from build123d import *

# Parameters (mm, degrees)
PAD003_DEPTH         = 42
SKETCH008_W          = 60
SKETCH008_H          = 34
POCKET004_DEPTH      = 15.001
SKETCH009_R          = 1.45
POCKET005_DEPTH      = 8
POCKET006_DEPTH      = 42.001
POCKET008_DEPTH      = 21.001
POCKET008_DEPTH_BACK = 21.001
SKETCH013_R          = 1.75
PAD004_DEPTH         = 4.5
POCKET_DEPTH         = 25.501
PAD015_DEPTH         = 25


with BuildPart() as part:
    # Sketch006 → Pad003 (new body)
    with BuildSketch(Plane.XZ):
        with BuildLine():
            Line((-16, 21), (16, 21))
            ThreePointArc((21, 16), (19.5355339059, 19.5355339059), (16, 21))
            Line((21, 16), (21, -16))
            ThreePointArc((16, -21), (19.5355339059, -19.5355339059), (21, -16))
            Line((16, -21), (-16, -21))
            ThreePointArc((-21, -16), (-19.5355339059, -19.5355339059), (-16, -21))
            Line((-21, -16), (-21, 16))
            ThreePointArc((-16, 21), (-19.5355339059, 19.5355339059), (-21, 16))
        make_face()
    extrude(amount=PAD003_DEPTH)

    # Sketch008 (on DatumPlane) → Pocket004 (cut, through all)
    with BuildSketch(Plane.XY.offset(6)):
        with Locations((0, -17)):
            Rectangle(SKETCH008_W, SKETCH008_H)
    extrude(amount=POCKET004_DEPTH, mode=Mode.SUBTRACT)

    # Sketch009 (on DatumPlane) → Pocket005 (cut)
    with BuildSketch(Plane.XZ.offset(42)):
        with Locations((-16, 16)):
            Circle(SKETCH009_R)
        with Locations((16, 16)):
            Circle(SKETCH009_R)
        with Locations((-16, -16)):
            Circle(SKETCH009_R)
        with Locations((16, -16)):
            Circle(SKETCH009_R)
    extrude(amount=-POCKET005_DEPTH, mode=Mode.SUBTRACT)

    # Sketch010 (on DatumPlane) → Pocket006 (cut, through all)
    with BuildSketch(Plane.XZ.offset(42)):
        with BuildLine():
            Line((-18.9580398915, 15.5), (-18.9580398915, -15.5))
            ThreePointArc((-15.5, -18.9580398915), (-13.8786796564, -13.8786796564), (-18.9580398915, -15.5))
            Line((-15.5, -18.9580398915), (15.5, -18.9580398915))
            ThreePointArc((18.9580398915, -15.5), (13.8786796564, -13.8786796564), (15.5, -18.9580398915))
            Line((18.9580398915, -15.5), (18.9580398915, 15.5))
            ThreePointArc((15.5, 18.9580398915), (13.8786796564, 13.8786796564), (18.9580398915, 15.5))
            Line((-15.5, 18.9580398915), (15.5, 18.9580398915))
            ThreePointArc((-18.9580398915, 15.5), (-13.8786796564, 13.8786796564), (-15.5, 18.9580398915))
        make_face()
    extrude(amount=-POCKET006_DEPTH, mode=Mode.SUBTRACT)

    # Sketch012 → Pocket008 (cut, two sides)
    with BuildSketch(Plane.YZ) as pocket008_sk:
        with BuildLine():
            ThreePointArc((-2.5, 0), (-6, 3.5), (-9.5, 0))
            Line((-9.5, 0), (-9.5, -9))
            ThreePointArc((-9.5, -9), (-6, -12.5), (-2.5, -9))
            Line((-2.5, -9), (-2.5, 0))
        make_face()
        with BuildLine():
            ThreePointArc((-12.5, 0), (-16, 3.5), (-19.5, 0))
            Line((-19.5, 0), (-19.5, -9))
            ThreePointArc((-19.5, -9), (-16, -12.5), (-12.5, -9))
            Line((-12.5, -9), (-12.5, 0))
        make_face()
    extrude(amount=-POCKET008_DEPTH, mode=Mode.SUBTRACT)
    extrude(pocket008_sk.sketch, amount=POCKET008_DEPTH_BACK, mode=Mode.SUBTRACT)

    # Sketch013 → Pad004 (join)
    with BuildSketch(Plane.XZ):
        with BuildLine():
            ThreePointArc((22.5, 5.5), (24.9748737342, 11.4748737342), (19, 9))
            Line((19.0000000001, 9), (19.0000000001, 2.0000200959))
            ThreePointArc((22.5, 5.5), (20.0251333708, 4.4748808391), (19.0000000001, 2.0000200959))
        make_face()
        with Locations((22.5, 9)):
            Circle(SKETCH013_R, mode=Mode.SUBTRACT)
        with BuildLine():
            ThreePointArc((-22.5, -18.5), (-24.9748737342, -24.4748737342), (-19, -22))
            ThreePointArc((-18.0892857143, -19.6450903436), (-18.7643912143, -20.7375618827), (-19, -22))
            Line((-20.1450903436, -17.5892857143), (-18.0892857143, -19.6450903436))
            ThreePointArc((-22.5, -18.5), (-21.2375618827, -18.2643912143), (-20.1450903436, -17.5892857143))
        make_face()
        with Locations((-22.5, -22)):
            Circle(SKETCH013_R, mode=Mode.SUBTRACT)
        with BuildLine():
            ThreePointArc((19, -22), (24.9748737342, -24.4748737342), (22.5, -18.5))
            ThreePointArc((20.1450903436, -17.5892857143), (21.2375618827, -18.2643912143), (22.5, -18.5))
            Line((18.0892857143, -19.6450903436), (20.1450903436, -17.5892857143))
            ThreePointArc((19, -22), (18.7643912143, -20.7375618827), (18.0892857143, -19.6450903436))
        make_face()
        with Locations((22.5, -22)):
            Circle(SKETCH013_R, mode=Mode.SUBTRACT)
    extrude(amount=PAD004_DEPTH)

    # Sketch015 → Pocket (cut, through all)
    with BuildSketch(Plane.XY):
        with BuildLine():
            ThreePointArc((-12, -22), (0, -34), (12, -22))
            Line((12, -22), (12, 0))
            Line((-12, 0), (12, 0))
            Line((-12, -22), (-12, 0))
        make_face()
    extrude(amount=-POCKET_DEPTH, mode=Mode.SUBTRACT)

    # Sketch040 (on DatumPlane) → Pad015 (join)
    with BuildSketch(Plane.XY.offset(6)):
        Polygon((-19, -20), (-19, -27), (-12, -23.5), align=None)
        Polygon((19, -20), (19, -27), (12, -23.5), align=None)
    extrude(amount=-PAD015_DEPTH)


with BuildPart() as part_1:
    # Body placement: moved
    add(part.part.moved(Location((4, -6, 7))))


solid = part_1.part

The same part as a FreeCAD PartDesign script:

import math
import FreeCAD as App
import Part
import Sketcher
from FreeCAD import Vector


def add_polygon(sketch, points):
    """Adds a closed chain of lines whose ends are joined by coincident constraints."""
    first, n = sketch.GeometryCount, len(points)
    for a, b in zip(points, points[1:] + points[:1]):
        sketch.addGeometry(Part.LineSegment(App.Vector(*a, 0), App.Vector(*b, 0)), False)
    for i in range(n):
        sketch.addConstraint(Sketcher.Constraint("Coincident", first + i, 2, first + (i + 1) % n, 1))

doc = App.newDocument("Part")
body = doc.addObject("PartDesign::Body", "Body")

# Sketch on XZ plane
sketch1 = body.newObject("Sketcher::SketchObject", "Sketch")
sketch1.AttachmentSupport = (doc.getObject("XZ_Plane"), [""])
sketch1.MapMode = "FlatFace"
sketch1.addGeometry([
    Part.LineSegment(Vector(16, 21, 0), Vector(-16, 21, 0)),  # 0
    Part.ArcOfCircle(Part.Circle(Vector(-16, 16, 0), Vector(0, 0, 1), 5), math.radians(90), math.radians(180)),  # 1
    Part.LineSegment(Vector(-21, 16, 0), Vector(-21, -16, 0)),  # 2
    Part.ArcOfCircle(Part.Circle(Vector(-16, -16, 0), Vector(0, 0, 1), 5), math.radians(180), math.radians(270)),  # 3
    Part.LineSegment(Vector(-16, -21, 0), Vector(16, -21, 0)),  # 4
    Part.ArcOfCircle(Part.Circle(Vector(16, -16, 0), Vector(0, 0, 1), 5), math.radians(-90), math.radians(0)),  # 5
    Part.LineSegment(Vector(21, -16, 0), Vector(21, 16, 0)),  # 6
    Part.ArcOfCircle(Part.Circle(Vector(16, 16, 0), Vector(0, 0, 1), 5), math.radians(0), math.radians(90)),  # 7
], False)
sketch1.addConstraint([
    Sketcher.Constraint("Tangent", 0, 2, 1, 1),
    Sketcher.Constraint("Tangent", 1, 2, 2, 1),
    Sketcher.Constraint("Tangent", 2, 2, 3, 1),
    Sketcher.Constraint("Tangent", 3, 2, 4, 1),
    Sketcher.Constraint("Tangent", 4, 2, 5, 1),
    Sketcher.Constraint("Tangent", 5, 2, 6, 1),
    Sketcher.Constraint("Tangent", 6, 2, 7, 1),
    Sketcher.Constraint("Tangent", 7, 2, 0, 1),
    Sketcher.Constraint("Horizontal", 0),
    Sketcher.Constraint("Vertical", 2),
    Sketcher.Constraint("Horizontal", 4),
    Sketcher.Constraint("Vertical", 6),
    Sketcher.Constraint("Equal", 1, 3),
    Sketcher.Constraint("Equal", 3, 5),
    Sketcher.Constraint("Equal", 5, 7),
    Sketcher.Constraint("Symmetric", 1, 3, 5, 3, -1, 1),
    Sketcher.Constraint("Equal", 4, 2),
    Sketcher.Constraint("Radius", 1, 5.0),
    Sketcher.Constraint("DistanceX", 0, 2, 0, 1, 32.0),
])
pad1 = body.newObject("PartDesign::Pad", "Pad")
pad1.Profile = sketch1
pad1.Length = 42

# Sketch on XY plane
sketch2 = body.newObject("Sketcher::SketchObject", "Sketch001")
sketch2.AttachmentSupport = (doc.getObject("XY_Plane"), [""])
sketch2.MapMode = "FlatFace"
sketch2.AttachmentOffset = App.Placement(Vector(0, 0, 6), App.Rotation())
add_polygon(sketch2, [(-30, 0), (-30, -34), (30, -34), (30, 0)])  # lines 0-3
sketch2.addConstraint([
    Sketcher.Constraint("Vertical", 0),
    Sketcher.Constraint("Horizontal", 1),
    Sketcher.Constraint("Vertical", 2),
    Sketcher.Constraint("Horizontal", 3),
    Sketcher.Constraint("Symmetric", 2, 2, 3, 2, -1, 1),
    Sketcher.Constraint("DistanceX", 1, 1, 1, 2, 60.0),
    Sketcher.Constraint("DistanceY", 0, 2, 0, 1, 34.0),
])
pocket1 = body.newObject("PartDesign::Pocket", "Pocket")
pocket1.Profile = sketch2
pocket1.Type = "ThroughAll"
pocket1.Reversed = True

# Sketch on XZ plane
sketch3 = body.newObject("Sketcher::SketchObject", "Sketch002")
sketch3.AttachmentSupport = (doc.getObject("XZ_Plane"), [""])
sketch3.MapMode = "FlatFace"
sketch3.AttachmentOffset = App.Placement(Vector(0, 0, 42), App.Rotation())
sketch3.addGeometry([
    Part.Circle(Vector(-16, 16, 0), Vector(0, 0, 1), 1.4),
    Part.Circle(Vector(16, 16, 0), Vector(0, 0, 1), 1.4),
    Part.Circle(Vector(-16, -16, 0), Vector(0, 0, 1), 1.4),
    Part.Circle(Vector(16, -16, 0), Vector(0, 0, 1), 1.4),
], False)
sketch3.addConstraint([
    Sketcher.Constraint("Equal", 0, 1),
    Sketcher.Constraint("Equal", 1, 2),
    Sketcher.Constraint("Equal", 2, 3),
    Sketcher.Constraint("Symmetric", 1, 3, 2, 3, -1, 1),
    Sketcher.Constraint("Symmetric", 0, 3, 3, 3, -1, 1),
    Sketcher.Constraint("Symmetric", 0, 3, 1, 3, -2),
    Sketcher.Constraint("Diameter", 0, 2.9),
    Sketcher.Constraint("DistanceX", 0, 3, -1, 1, 16.0),
    Sketcher.Constraint("DistanceY", -1, 1, 0, 3, 16.0),
])
pocket2 = body.newObject("PartDesign::Pocket", "Pocket001")
pocket2.Profile = sketch3
pocket2.Length = 8

# Sketch on XZ plane
sketch4 = body.newObject("Sketcher::SketchObject", "Sketch003")
sketch4.AttachmentSupport = (doc.getObject("XZ_Plane"), [""])
sketch4.MapMode = "FlatFace"
sketch4.AttachmentOffset = App.Placement(Vector(0, 0, 42), App.Rotation())
sketch4.addGeometry([
    Part.LineSegment(Vector(-19, 15.5, 0), Vector(-19, -15.5, 0)),  # 0
    Part.ArcOfCircle(Part.Circle(Vector(-16, -16, 0), Vector(0, 0, 1), 3), math.radians(-80), math.radians(170)),  # 1
    Part.LineSegment(Vector(-15.5, -19, 0), Vector(15.5, -19, 0)),  # 2
    Part.ArcOfCircle(Part.Circle(Vector(16, -16, 0), Vector(0, 0, 1), 3), math.radians(10), math.radians(260)),  # 3
    Part.LineSegment(Vector(19, -15.5, 0), Vector(19, 15.5, 0)),  # 4
    Part.ArcOfCircle(Part.Circle(Vector(16, 16, 0), Vector(0, 0, 1), 3), math.radians(100), math.radians(350)),  # 5
    Part.LineSegment(Vector(15.5, 19, 0), Vector(-15.5, 19, 0)),  # 6
    Part.ArcOfCircle(Part.Circle(Vector(-16, 16, 0), Vector(0, 0, 1), 3), math.radians(-170), math.radians(80)),  # 7
], False)
sketch4.addConstraint([
    Sketcher.Constraint("Coincident", 0, 2, 1, 2),
    Sketcher.Constraint("Coincident", 1, 1, 2, 1),
    Sketcher.Constraint("Coincident", 2, 2, 3, 2),
    Sketcher.Constraint("Coincident", 3, 1, 4, 1),
    Sketcher.Constraint("Coincident", 4, 2, 5, 2),
    Sketcher.Constraint("Coincident", 5, 1, 6, 1),
    Sketcher.Constraint("Coincident", 6, 2, 7, 2),
    Sketcher.Constraint("Coincident", 7, 1, 0, 1),
    Sketcher.Constraint("Vertical", 0),
    Sketcher.Constraint("Horizontal", 2),
    Sketcher.Constraint("Vertical", 4),
    Sketcher.Constraint("Horizontal", 6),
    Sketcher.Constraint("Equal", 1, 3),
    Sketcher.Constraint("Equal", 3, 5),
    Sketcher.Constraint("Equal", 5, 7),
    Sketcher.Constraint("Symmetric", 1, 3, 5, 3, -1, 1),
    Sketcher.Constraint("Symmetric", 3, 3, 7, 3, -1, 1),
    Sketcher.Constraint("Symmetric", 1, 3, 3, 3, -2),
    Sketcher.Constraint("Horizontal", 0, 2, 3, 1),
    Sketcher.Constraint("Vertical", 2, 2, 5, 1),
    Sketcher.Constraint("Equal", 6, 0),
    Sketcher.Constraint("Radius", 1, 3.0),
    Sketcher.Constraint("DistanceX", 2, 1, 2, 2, 31.0),
    Sketcher.Constraint("DistanceX", 1, 3, -1, 1, 16.0),
    Sketcher.Constraint("DistanceY", 1, 3, -1, 1, 16.0),
])
pocket3 = body.newObject("PartDesign::Pocket", "Pocket002")
pocket3.Profile = sketch4
pocket3.Type = "ThroughAll"

# Sketch on YZ plane
sketch5 = body.newObject("Sketcher::SketchObject", "Sketch004")
sketch5.AttachmentSupport = (doc.getObject("YZ_Plane"), [""])
sketch5.MapMode = "FlatFace"
sketch5.addGeometry([
    Part.ArcOfCircle(Part.Circle(Vector(-6, 0, 0), Vector(0, 0, 1), 3.5), math.radians(0), math.radians(180)),  # 0
    Part.LineSegment(Vector(-9.5, 0, 0), Vector(-9.5, -9, 0)),  # 1
    Part.ArcOfCircle(Part.Circle(Vector(-6, -9, 0), Vector(0, 0, 1), 3.5), math.radians(180), math.radians(360)),  # 2
    Part.LineSegment(Vector(-2.5, -9, 0), Vector(-2.5, 0, 0)),  # 3
    Part.ArcOfCircle(Part.Circle(Vector(-16, 0, 0), Vector(0, 0, 1), 3.5), math.radians(0), math.radians(180)),  # 4
    Part.LineSegment(Vector(-19.5, 0, 0), Vector(-19.5, -9, 0)),  # 5
    Part.ArcOfCircle(Part.Circle(Vector(-16, -9, 0), Vector(0, 0, 1), 3.5), math.radians(180), math.radians(360)),  # 6
    Part.LineSegment(Vector(-12.5, -9, 0), Vector(-12.5, 0, 0)),  # 7
], False)
sketch5.addConstraint([
    Sketcher.Constraint("Tangent", 0, 2, 1, 1),
    Sketcher.Constraint("Tangent", 1, 2, 2, 1),
    Sketcher.Constraint("Tangent", 2, 2, 3, 1),
    Sketcher.Constraint("Tangent", 3, 2, 0, 1),
    Sketcher.Constraint("Tangent", 4, 2, 5, 1),
    Sketcher.Constraint("Tangent", 5, 2, 6, 1),
    Sketcher.Constraint("Tangent", 6, 2, 7, 1),
    Sketcher.Constraint("Tangent", 7, 2, 4, 1),
    Sketcher.Constraint("Vertical", 1),
    Sketcher.Constraint("Vertical", 3),
    Sketcher.Constraint("Vertical", 5),
    Sketcher.Constraint("Vertical", 7),
    Sketcher.Constraint("Equal", 2, 4),
    Sketcher.Constraint("PointOnObject", 0, 3, -1),
    Sketcher.Constraint("PointOnObject", 4, 3, -1),
    Sketcher.Constraint("Horizontal", 2, 3, 6, 3),
    Sketcher.Constraint("Radius", 0, 3.5),
    Sketcher.Constraint("DistanceY", 1, 2, 1, 1, 9.0),
    Sketcher.Constraint("DistanceX", 0, 3, -1, 1, 6.0),
    Sketcher.Constraint("DistanceX", 4, 3, -1, 1, 16.0),
])
pocket4 = body.newObject("PartDesign::Pocket", "Pocket003")
pocket4.Profile = sketch5
pocket4.Type = "ThroughAll"
pocket4.Midplane = True

# Sketch on XZ plane
sketch6 = body.newObject("Sketcher::SketchObject", "Sketch005")
sketch6.AttachmentSupport = (doc.getObject("XZ_Plane"), [""])
sketch6.MapMode = "FlatFace"
sketch6.addGeometry([
    Part.ArcOfCircle(Part.Circle(Vector(22.5, 9, 0), Vector(0, 0, 1), 3.5), math.radians(-90), math.radians(180)),  # 0
    Part.LineSegment(Vector(19, 9, 0), Vector(19, 2, 0)),  # 1
    Part.ArcOfCircle(Part.Circle(Vector(22.5, 2, 0), Vector(0, 0, 1), 3.5), math.radians(90), math.radians(180)),  # 2
    Part.Circle(Vector(22.5, 9, 0), Vector(0, 0, 1), 1.8),  # 3
    Part.ArcOfCircle(Part.Circle(Vector(-22.5, -22, 0), Vector(0, 0, 1), 3.5), math.radians(90), math.radians(360)),  # 4
    Part.ArcOfCircle(Part.Circle(Vector(-15.5, -22, 0), Vector(0, 0, 1), 3.5), math.radians(138), math.radians(180)),  # 5
    Part.LineSegment(Vector(-18.1, -19.6, 0), Vector(-20.1, -17.6, 0)),  # 6
    Part.ArcOfCircle(Part.Circle(Vector(-22.5, -15, 0), Vector(0, 0, 1), 3.5), math.radians(-90), math.radians(-48)),  # 7
    Part.Circle(Vector(-22.5, -22, 0), Vector(0, 0, 1), 1.8),  # 8
    Part.ArcOfCircle(Part.Circle(Vector(22.5, -22, 0), Vector(0, 0, 1), 3.5), math.radians(180), math.radians(450)),  # 9
    Part.ArcOfCircle(Part.Circle(Vector(22.5, -15, 0), Vector(0, 0, 1), 3.5), math.radians(-132), math.radians(-90)),  # 10
    Part.LineSegment(Vector(20.1, -17.6, 0), Vector(18.1, -19.6, 0)),  # 11
    Part.ArcOfCircle(Part.Circle(Vector(15.5, -22, 0), Vector(0, 0, 1), 3.5), math.radians(0), math.radians(42)),  # 12
    Part.Circle(Vector(22.5, -22, 0), Vector(0, 0, 1), 1.8),  # 13
], False)
sketch6.addConstraint([
    Sketcher.Constraint("Tangent", 0, 2, 1, 1),
    Sketcher.Constraint("Coincident", 1, 2, 2, 2),
    Sketcher.Constraint("Tangent", 2, 1, 0, 1),
    Sketcher.Constraint("Tangent", 4, 2, 5, 2),
    Sketcher.Constraint("Coincident", 5, 1, 6, 1),
    Sketcher.Constraint("Coincident", 6, 2, 7, 2),
    Sketcher.Constraint("Tangent", 7, 1, 4, 1),
    Sketcher.Constraint("Tangent", 9, 2, 10, 2),
    Sketcher.Constraint("Coincident", 10, 1, 11, 1),
    Sketcher.Constraint("Coincident", 11, 2, 12, 2),
    Sketcher.Constraint("Tangent", 12, 1, 9, 1),
    Sketcher.Constraint("Vertical", 1),
    Sketcher.Constraint("Coincident", 3, 3, 0, 3),
    Sketcher.Constraint("Coincident", 8, 3, 4, 3),
    Sketcher.Constraint("Coincident", 13, 3, 9, 3),
    Sketcher.Constraint("Equal", 0, 2),
    Sketcher.Constraint("Equal", 2, 4),
    Sketcher.Constraint("Equal", 4, 5),
    Sketcher.Constraint("Equal", 5, 7),
    Sketcher.Constraint("Equal", 3, 8),
    Sketcher.Constraint("Equal", 7, 9),
    Sketcher.Constraint("Equal", 9, 10),
    Sketcher.Constraint("Equal", 10, 12),
    Sketcher.Constraint("Equal", 8, 13),
    Sketcher.Constraint("Symmetric", 4, 3, 9, 3, -2),
    Sketcher.Constraint("Symmetric", 6, 2, 10, 1, -2),
    Sketcher.Constraint("Symmetric", 5, 1, 11, 2, -2),
    Sketcher.Constraint("Perpendicular", 6, 11),
    Sketcher.Constraint("Horizontal", 4, 3, 5, 3),
    Sketcher.Constraint("Vertical", 4, 3, 7, 3),
    Sketcher.Constraint("Vertical", 3, 3, 9, 3),
    Sketcher.Constraint("Diameter", 3, 3.5),
    Sketcher.Constraint("Radius", 0, 3.5),
    Sketcher.Constraint("DistanceY", -1, 1, 0, 3, 9.0),
    Sketcher.Constraint("DistanceY", 4, 3, -1, 1, 22.0),
    Sketcher.Constraint("DistanceX", -1, 1, 0, 2, 19.0),
    Sketcher.Constraint("DistanceY", 1, 2, 1, 1, 6.99998),
    Sketcher.Constraint("DistanceY", 5, 1, -1, 1, 19.64509),
])
pad2 = body.newObject("PartDesign::Pad", "Pad001")
pad2.Profile = sketch6
pad2.Length = 4.5

# Sketch on XY plane
sketch7 = body.newObject("Sketcher::SketchObject", "Sketch006")
sketch7.AttachmentSupport = (doc.getObject("XY_Plane"), [""])
sketch7.MapMode = "FlatFace"
sketch7.addGeometry([
    Part.ArcOfCircle(Part.Circle(Vector(0, -22, 0), Vector(0, 0, 1), 12), math.radians(180), math.radians(360)),
    Part.LineSegment(Vector(12, -22, 0), Vector(12, 0, 0)),
    Part.LineSegment(Vector(12, 0, 0), Vector(-12, 0, 0)),
    Part.LineSegment(Vector(-12, 0, 0), Vector(-12, -22, 0)),
], False)
sketch7.addConstraint([
    Sketcher.Constraint("Tangent", 0, 2, 1, 1),
    Sketcher.Constraint("Coincident", 1, 2, 2, 1),
    Sketcher.Constraint("Coincident", 2, 2, 3, 1),
    Sketcher.Constraint("Tangent", 3, 2, 0, 1),
    Sketcher.Constraint("Vertical", 1),
    Sketcher.Constraint("Horizontal", 2),
    Sketcher.Constraint("Vertical", 3),
    Sketcher.Constraint("Symmetric", 1, 2, 2, 2, -1, 1),
    Sketcher.Constraint("Radius", 0, 12.0),
    Sketcher.Constraint("DistanceY", 1, 1, 1, 2, 22.0),
])
pocket5 = body.newObject("PartDesign::Pocket", "Pocket004")
pocket5.Profile = sketch7
pocket5.Type = "ThroughAll"

# Sketch on XY plane
sketch8 = body.newObject("Sketcher::SketchObject", "Sketch007")
sketch8.AttachmentSupport = (doc.getObject("XY_Plane"), [""])
sketch8.MapMode = "FlatFace"
sketch8.AttachmentOffset = App.Placement(Vector(0, 0, 6), App.Rotation())
add_polygon(sketch8, [(-19, -20), (-19, -27), (-12, -24)])  # lines 0-2
add_polygon(sketch8, [(19, -27), (19, -20), (12, -24)])  # lines 3-5
sketch8.addConstraint([
    Sketcher.Constraint("Vertical", 0),
    Sketcher.Constraint("Vertical", 3),
    Sketcher.Constraint("Symmetric", 2, 2, 3, 2, -2),
    Sketcher.Constraint("Symmetric", 1, 2, 4, 2, -2),
    Sketcher.Constraint("Parallel", 1, 4),
    Sketcher.Constraint("Parallel", 2, 5),
    Sketcher.Constraint("DistanceY", 0, 2, 0, 1, 7.0),
    Sketcher.Constraint("DistanceX", 0, 2, -1, 1, 19.0),
    Sketcher.Constraint("DistanceY", 0, 2, -1, 1, 27.0),
    Sketcher.Constraint("DistanceX", 1, 2, -1, 1, 12.0),
])
pad3 = body.newObject("PartDesign::Pad", "Pad002")
pad3.Profile = sketch8
pad3.Length = 25
pad3.Reversed = True
body2 = doc.addObject("PartDesign::Body", "Body001")
doc.recompute()

body.Placement = App.Placement(Vector(4, -6, 7), App.Rotation(Vector(0, 0, 1), 0))
boolean = body2.newObject("PartDesign::Boolean", "Boolean")
boolean.Type = "Fuse"
boolean.addObjects([body])

doc.recompute()
